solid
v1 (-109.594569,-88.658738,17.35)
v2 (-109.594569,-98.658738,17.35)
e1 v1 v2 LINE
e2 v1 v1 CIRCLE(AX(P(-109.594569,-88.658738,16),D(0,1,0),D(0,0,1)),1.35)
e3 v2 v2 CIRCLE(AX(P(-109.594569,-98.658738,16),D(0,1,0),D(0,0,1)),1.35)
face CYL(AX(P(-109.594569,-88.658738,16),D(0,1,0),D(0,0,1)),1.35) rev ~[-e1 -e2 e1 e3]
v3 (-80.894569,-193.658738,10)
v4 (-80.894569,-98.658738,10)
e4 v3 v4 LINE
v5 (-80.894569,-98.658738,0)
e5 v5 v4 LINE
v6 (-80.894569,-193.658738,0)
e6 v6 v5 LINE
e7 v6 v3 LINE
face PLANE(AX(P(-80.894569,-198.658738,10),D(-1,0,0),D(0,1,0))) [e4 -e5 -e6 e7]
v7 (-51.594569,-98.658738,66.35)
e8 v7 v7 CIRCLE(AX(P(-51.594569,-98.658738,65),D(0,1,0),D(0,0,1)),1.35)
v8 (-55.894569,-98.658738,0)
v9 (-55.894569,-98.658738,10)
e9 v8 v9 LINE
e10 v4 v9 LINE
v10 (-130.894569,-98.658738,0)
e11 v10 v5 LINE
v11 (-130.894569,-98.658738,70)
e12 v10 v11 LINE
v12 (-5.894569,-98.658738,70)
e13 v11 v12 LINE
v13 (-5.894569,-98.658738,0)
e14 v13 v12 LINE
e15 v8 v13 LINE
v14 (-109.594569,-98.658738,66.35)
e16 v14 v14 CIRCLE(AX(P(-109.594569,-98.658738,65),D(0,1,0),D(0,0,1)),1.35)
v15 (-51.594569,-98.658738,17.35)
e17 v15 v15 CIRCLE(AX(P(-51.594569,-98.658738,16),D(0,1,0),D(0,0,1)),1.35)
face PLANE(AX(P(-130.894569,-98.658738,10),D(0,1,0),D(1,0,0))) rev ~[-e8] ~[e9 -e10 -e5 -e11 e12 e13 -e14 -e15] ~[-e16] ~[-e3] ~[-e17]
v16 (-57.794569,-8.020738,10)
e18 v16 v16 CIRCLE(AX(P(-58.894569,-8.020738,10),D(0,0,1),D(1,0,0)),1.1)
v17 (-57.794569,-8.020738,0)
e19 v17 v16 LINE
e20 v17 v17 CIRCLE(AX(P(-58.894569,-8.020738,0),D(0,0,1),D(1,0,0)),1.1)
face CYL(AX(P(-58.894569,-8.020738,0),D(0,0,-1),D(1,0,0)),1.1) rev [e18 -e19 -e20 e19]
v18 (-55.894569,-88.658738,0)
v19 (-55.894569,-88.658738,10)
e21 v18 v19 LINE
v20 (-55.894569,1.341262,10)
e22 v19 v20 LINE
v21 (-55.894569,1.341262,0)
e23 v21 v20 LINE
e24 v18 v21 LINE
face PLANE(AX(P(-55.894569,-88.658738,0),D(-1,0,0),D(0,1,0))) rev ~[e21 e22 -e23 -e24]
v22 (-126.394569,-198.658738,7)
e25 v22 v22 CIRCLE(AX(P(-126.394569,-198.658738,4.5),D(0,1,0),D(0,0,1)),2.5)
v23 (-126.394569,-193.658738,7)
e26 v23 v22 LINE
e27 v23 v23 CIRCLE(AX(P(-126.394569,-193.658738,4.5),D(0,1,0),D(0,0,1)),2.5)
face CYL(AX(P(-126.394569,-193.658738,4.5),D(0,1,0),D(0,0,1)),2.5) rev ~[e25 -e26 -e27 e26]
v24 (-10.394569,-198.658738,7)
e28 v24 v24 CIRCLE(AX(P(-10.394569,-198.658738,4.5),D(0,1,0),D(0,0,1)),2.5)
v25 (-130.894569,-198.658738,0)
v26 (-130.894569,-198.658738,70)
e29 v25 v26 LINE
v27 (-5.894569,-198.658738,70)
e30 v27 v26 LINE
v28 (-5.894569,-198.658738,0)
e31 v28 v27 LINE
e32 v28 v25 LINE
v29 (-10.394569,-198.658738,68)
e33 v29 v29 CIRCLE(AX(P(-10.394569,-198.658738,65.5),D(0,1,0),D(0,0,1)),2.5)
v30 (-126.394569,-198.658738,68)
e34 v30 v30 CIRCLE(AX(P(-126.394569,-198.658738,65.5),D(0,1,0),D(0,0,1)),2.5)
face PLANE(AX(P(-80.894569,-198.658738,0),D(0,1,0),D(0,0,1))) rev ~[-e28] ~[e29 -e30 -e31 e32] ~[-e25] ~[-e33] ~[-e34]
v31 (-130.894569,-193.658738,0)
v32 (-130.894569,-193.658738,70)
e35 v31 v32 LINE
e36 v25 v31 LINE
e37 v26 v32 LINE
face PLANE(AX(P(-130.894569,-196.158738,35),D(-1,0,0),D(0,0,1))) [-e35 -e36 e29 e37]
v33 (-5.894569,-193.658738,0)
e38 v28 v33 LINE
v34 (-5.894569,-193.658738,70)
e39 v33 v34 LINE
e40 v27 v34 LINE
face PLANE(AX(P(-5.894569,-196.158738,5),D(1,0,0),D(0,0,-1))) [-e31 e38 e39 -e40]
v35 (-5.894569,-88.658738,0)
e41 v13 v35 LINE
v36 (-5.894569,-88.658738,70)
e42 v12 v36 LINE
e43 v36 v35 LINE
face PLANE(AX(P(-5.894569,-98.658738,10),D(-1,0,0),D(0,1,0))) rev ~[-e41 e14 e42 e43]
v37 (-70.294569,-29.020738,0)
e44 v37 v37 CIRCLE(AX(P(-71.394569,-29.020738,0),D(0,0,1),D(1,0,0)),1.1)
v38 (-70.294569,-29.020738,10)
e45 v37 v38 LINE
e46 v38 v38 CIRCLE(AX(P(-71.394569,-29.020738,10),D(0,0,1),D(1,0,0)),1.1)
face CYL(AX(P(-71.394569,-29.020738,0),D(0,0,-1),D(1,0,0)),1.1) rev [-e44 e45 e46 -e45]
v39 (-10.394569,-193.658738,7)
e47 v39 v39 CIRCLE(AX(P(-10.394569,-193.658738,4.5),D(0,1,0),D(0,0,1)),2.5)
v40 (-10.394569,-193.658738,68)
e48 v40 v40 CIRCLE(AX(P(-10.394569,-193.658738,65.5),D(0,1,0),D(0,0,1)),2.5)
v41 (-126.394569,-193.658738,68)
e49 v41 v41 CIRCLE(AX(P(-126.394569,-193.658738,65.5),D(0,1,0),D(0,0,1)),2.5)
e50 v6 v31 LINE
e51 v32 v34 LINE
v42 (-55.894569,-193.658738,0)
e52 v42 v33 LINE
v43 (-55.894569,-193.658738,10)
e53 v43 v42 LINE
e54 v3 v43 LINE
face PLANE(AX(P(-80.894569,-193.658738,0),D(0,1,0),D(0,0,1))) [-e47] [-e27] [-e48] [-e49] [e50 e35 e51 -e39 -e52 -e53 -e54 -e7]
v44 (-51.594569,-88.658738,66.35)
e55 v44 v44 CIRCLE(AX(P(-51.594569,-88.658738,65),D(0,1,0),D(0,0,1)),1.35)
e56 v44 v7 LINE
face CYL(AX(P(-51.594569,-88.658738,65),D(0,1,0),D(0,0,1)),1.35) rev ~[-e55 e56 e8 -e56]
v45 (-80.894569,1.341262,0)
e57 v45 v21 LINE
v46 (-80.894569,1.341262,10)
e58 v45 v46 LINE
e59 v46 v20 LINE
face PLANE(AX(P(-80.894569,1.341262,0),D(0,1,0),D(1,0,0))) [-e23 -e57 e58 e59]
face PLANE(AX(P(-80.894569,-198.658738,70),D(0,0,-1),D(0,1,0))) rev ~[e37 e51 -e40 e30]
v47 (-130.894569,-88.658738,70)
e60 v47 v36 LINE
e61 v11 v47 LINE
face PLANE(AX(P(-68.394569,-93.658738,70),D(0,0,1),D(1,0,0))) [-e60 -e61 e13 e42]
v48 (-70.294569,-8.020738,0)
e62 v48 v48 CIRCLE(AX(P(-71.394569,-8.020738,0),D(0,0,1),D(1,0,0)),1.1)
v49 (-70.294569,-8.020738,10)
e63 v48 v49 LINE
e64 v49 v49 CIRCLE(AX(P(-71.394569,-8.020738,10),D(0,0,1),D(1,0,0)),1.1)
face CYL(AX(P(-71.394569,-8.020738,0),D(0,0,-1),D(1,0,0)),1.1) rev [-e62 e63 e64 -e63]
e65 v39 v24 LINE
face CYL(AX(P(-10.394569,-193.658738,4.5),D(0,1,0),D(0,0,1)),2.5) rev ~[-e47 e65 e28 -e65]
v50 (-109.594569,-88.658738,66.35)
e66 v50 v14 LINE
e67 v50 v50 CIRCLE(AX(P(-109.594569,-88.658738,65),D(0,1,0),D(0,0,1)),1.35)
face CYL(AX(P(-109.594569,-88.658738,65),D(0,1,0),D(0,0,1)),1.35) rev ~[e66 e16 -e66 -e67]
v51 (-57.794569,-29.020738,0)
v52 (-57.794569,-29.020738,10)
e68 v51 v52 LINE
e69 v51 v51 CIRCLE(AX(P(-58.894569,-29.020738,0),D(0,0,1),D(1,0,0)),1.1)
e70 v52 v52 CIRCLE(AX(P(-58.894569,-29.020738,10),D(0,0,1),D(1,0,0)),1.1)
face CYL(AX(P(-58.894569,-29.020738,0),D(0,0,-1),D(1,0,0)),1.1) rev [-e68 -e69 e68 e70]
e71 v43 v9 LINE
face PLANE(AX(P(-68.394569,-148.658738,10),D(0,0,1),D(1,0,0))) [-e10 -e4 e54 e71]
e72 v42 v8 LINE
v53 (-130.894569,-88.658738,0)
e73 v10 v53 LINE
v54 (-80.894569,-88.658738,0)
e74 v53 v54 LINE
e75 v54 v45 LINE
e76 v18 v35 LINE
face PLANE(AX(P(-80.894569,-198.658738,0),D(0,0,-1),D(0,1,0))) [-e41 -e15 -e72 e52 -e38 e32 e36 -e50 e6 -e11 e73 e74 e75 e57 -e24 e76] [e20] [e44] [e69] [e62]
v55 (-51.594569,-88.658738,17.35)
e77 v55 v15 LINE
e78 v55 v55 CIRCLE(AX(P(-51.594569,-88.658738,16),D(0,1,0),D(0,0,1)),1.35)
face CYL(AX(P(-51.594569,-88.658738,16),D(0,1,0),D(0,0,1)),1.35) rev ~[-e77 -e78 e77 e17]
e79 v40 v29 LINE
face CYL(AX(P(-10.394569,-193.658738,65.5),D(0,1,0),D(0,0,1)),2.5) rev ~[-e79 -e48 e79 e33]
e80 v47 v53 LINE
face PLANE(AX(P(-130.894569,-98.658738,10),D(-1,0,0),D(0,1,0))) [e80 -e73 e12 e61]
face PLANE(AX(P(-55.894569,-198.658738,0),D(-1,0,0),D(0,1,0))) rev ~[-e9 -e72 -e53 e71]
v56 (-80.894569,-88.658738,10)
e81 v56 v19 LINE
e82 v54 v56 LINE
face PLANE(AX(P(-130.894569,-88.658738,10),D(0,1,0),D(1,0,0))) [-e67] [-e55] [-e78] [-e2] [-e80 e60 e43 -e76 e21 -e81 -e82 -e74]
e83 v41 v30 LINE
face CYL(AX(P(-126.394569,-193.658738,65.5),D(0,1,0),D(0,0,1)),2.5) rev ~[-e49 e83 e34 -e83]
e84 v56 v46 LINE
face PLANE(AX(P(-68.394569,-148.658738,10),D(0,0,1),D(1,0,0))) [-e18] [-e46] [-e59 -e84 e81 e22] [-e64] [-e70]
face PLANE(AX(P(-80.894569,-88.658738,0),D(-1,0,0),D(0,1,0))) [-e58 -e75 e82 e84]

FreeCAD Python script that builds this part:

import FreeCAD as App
import Part
import Sketcher
Q = App.Units.Quantity

doc = App.newDocument("Part")
params = doc.addObject("Spreadsheet::Sheet", "Params")
for row, (alias, value) in enumerate([
    ("sketch1_diameter", "2.2 mm"),
    ("sketch1_width", "50 mm"),
    ("sketch1_width2", "25 mm"),
    ("sketch1_height", "90 mm"),
    ("sketch1_height2", "10 mm"),
    ("pad1_length", "10 mm"),
    ("sketch2_width", "125 mm"),
    ("sketch2_height", "10 mm"),
    ("pad2_length", "60 mm"),
    ("sketch3_width", "75 mm"),
    ("sketch3_height", "5 mm"),
    ("pad3_length", "60 mm"),
    ("sketch4_width", "5 mm"),
    ("sketch4_height", "10 mm"),
    ("pad4_length", "50 mm"),
    ("sketch5_width", "5 mm"),
    ("sketch5_height", "70 mm"),
    ("pad5_length", "50 mm"),
    ("sketch6_diameter", "5 mm"),
    ("sketch7_diameter", "2.7 mm"),
    ("sketch8_diameter", "2.7 mm"),
    ("sketch9_diameter", "2.7 mm"),
    ("sketch10_diameter", "2.7 mm"),
], start=1):
    params.set(f"A{row}", alias)
    params.set(f"B{row}", "=" + value)
    params.setAlias(f"B{row}", alias)

body = doc.addObject("PartDesign::Body", "Body")

# Sketch on XY plane
sketch1 = body.newObject("Sketcher::SketchObject", "Sketch")
sketch1.AttachmentSupport = (doc.getObject("XY_Plane"), [""])
sketch1.MapMode = "FlatFace"
sketch1.addGeometry([
    Part.LineSegment(App.Vector(-80.9, 1.3, 0), App.Vector(-80.9, -88.7, 0)),  # 0
    Part.LineSegment(App.Vector(-80.9, -88.7, 0), App.Vector(-130.9, -88.7, 0)),  # 1
    Part.LineSegment(App.Vector(-130.9, -88.7, 0), App.Vector(-130.9, -98.7, 0)),  # 2
    Part.LineSegment(App.Vector(-130.9, -98.7, 0), App.Vector(-80.9, -98.7, 0)),  # 3
    Part.LineSegment(App.Vector(-80.9, -98.7, 0), App.Vector(-80.9, -198.7, 0)),  # 4
    Part.LineSegment(App.Vector(-80.9, -198.7, 0), App.Vector(-55.9, -198.7, 0)),  # 5
    Part.LineSegment(App.Vector(-55.9, -198.7, 0), App.Vector(-55.9, -98.7, 0)),  # 6
    Part.LineSegment(App.Vector(-55.9, -98.7, 0), App.Vector(-5.9, -98.7, 0)),  # 7
    Part.LineSegment(App.Vector(-5.9, -98.7, 0), App.Vector(-5.9, -88.7, 0)),  # 8
    Part.LineSegment(App.Vector(-5.9, -88.7, 0), App.Vector(-55.9, -88.7, 0)),  # 9
    Part.LineSegment(App.Vector(-55.9, -88.7, 0), App.Vector(-55.9, 1.3, 0)),  # 10
    Part.LineSegment(App.Vector(-55.9, 1.3, 0), App.Vector(-80.9, 1.3, 0)),  # 11
    Part.Circle(App.Vector(-71.4, -29, 0), App.Vector(0, 0, 1), 1.1),  # 12
    Part.Circle(App.Vector(-58.9, -29, 0), App.Vector(0, 0, 1), 1.1),  # 13
    Part.Circle(App.Vector(-71.4, -8, 0), App.Vector(0, 0, 1), 1.1),  # 14
    Part.Circle(App.Vector(-58.9, -8, 0), App.Vector(0, 0, 1), 1.1),  # 15
], False)
sketch1.addConstraint([
    Sketcher.Constraint("Coincident", 0, 2, 1, 1),
    Sketcher.Constraint("Coincident", 1, 2, 2, 1),
    Sketcher.Constraint("Coincident", 2, 2, 3, 1),
    Sketcher.Constraint("Coincident", 3, 2, 4, 1),
    Sketcher.Constraint("Coincident", 4, 2, 5, 1),
    Sketcher.Constraint("Coincident", 5, 2, 6, 1),
    Sketcher.Constraint("Coincident", 6, 2, 7, 1),
    Sketcher.Constraint("Coincident", 7, 2, 8, 1),
    Sketcher.Constraint("Coincident", 8, 2, 9, 1),
    Sketcher.Constraint("Coincident", 9, 2, 10, 1),
    Sketcher.Constraint("Coincident", 10, 2, 11, 1),
    Sketcher.Constraint("Coincident", 11, 2, 0, 1),
    Sketcher.Constraint("Vertical", 0),
    Sketcher.Constraint("Horizontal", 1),
    Sketcher.Constraint("Vertical", 2),
    Sketcher.Constraint("Horizontal", 3),
    Sketcher.Constraint("Vertical", 4),
    Sketcher.Constraint("Horizontal", 5),
    Sketcher.Constraint("Vertical", 6),
    Sketcher.Constraint("Horizontal", 7),
    Sketcher.Constraint("Vertical", 8),
    Sketcher.Constraint("Horizontal", 9),
    Sketcher.Constraint("Vertical", 10),
    Sketcher.Constraint("Horizontal", 11),
    Sketcher.Constraint("Equal", 12, 13),
    Sketcher.Constraint("Equal", 13, 14),
    Sketcher.Constraint("Equal", 14, 15),
    Sketcher.Constraint("Horizontal", 12, 3, 13, 3),
    Sketcher.Constraint("Horizontal", 14, 3, 15, 3),
    Sketcher.Constraint("Horizontal", 3, 2, 6, 2),
    Sketcher.Constraint("Horizontal", 1, 2, 8, 2),
    Sketcher.Constraint("Vertical", 12, 3, 14, 3),
    Sketcher.Constraint("Vertical", 13, 3, 15, 3),
    Sketcher.Constraint("Vertical", 0, 2, 3, 2),
    Sketcher.Constraint("Vertical", 6, 2, 9, 2),
    Sketcher.Constraint("Equal", 3, 7),
    Sketcher.Constraint("Diameter", 12, Q("2.2 mm")),
    Sketcher.Constraint("DistanceX", 1, 2, 1, 1, Q("50 mm")),
    Sketcher.Constraint("DistanceX", 5, 1, 5, 2, Q("25 mm")),
    Sketcher.Constraint("DistanceY", 0, 2, 0, 1, Q("90 mm")),
    Sketcher.Constraint("DistanceY", 2, 2, 2, 1, Q("10 mm")),
    Sketcher.Constraint("DistanceY", 4, 2, 4, 1, Q("100 mm")),
    Sketcher.Constraint("DistanceY", 12, 3, 14, 3, Q("21 mm")),
    Sketcher.Constraint("DistanceX", 0, 2, 13, 3, Q("22 mm")),
    Sketcher.Constraint("DistanceX", 12, 3, 13, 3, Q("12.5 mm")),
    Sketcher.Constraint("DistanceY", 0, 2, 12, 3, Q("59.638 mm")),
    Sketcher.Constraint("DistanceX", 12, 3, -1, 1, Q("71.394569 mm")),
    Sketcher.Constraint("DistanceY", 12, 3, -1, 1, Q("29.020738 mm")),
])
sketch1.setExpression("Constraints[36]", "Params.sketch1_diameter")
sketch1.setExpression("Constraints[37]", "Params.sketch1_width")
sketch1.setExpression("Constraints[38]", "Params.sketch1_width2")
sketch1.setExpression("Constraints[39]", "Params.sketch1_height")
sketch1.setExpression("Constraints[40]", "Params.sketch1_height2")
pad1 = body.newObject("PartDesign::Pad", "Pad")
pad1.Profile = sketch1
pad1.setExpression("Length", "Params.pad1_length")

# Sketch on XY plane
sketch2 = body.newObject("Sketcher::SketchObject", "Sketch001")
sketch2.AttachmentSupport = (doc.getObject("XY_Plane"), [""])
sketch2.MapMode = "FlatFace"
sketch2.AttachmentOffset = App.Placement(App.Vector(0, 0, 10), App.Rotation())
sketch2.addGeometry([
    Part.LineSegment(App.Vector(-131, -89, 0), App.Vector(-131, -99, 0)),
    Part.LineSegment(App.Vector(-131, -99, 0), App.Vector(-6, -99, 0)),
    Part.LineSegment(App.Vector(-6, -99, 0), App.Vector(-6, -89, 0)),
    Part.LineSegment(App.Vector(-6, -89, 0), App.Vector(-131, -89, 0)),
], False)
sketch2.addConstraint([
    Sketcher.Constraint("Coincident", 0, 2, 1, 1),
    Sketcher.Constraint("Coincident", 1, 2, 2, 1),
    Sketcher.Constraint("Coincident", 2, 2, 3, 1),
    Sketcher.Constraint("Coincident", 3, 2, 0, 1),
    Sketcher.Constraint("Vertical", 0),
    Sketcher.Constraint("Horizontal", 1),
    Sketcher.Constraint("Vertical", 2),
    Sketcher.Constraint("Horizontal", 3),
    Sketcher.Constraint("DistanceX", 1, 1, 1, 2, Q("125 mm")),
    Sketcher.Constraint("DistanceY", 0, 2, 0, 1, Q("10 mm")),
    Sketcher.Constraint("DistanceX", 0, 2, -1, 1, Q("130.894569 mm")),
    Sketcher.Constraint("DistanceY", 0, 2, -1, 1, Q("98.658738 mm")),
])
sketch2.setExpression("Constraints[8]", "Params.sketch2_width")
sketch2.setExpression("Constraints[9]", "Params.sketch2_height")
pad2 = body.newObject("PartDesign::Pad", "Pad001")
pad2.Profile = sketch2
pad2.setExpression("Length", "Params.pad2_length")

# Sketch on XY plane
sketch3 = body.newObject("Sketcher::SketchObject", "Sketch002")
sketch3.AttachmentSupport = (doc.getObject("XY_Plane"), [""])
sketch3.MapMode = "FlatFace"
sketch3.AttachmentOffset = App.Placement(App.Vector(0, 0, 10), App.Rotation())
sketch3.addGeometry([
    Part.LineSegment(App.Vector(-81, -194, 0), App.Vector(-81, -199, 0)),
    Part.LineSegment(App.Vector(-81, -199, 0), App.Vector(-6, -199, 0)),
    Part.LineSegment(App.Vector(-6, -199, 0), App.Vector(-6, -194, 0)),
    Part.LineSegment(App.Vector(-6, -194, 0), App.Vector(-81, -194, 0)),
], False)
sketch3.addConstraint([
    Sketcher.Constraint("Coincident", 0, 2, 1, 1),
    Sketcher.Constraint("Coincident", 1, 2, 2, 1),
    Sketcher.Constraint("Coincident", 2, 2, 3, 1),
    Sketcher.Constraint("Coincident", 3, 2, 0, 1),
    Sketcher.Constraint("Vertical", 0),
    Sketcher.Constraint("Horizontal", 1),
    Sketcher.Constraint("Vertical", 2),
    Sketcher.Constraint("Horizontal", 3),
    Sketcher.Constraint("DistanceX", 1, 1, 1, 2, Q("75 mm")),
    Sketcher.Constraint("DistanceY", 0, 2, 0, 1, Q("5 mm")),
    Sketcher.Constraint("DistanceX", 0, 2, -1, 1, Q("80.894569 mm")),
    Sketcher.Constraint("DistanceY", 0, 2, -1, 1, Q("198.658738 mm")),
])
sketch3.setExpression("Constraints[8]", "Params.sketch3_width")
sketch3.setExpression("Constraints[9]", "Params.sketch3_height")
pad3 = body.newObject("PartDesign::Pad", "Pad002")
pad3.Profile = sketch3
pad3.setExpression("Length", "Params.pad3_length")

# Sketch on YZ plane
sketch4 = body.newObject("Sketcher::SketchObject", "Sketch003")
sketch4.AttachmentSupport = (doc.getObject("YZ_Plane"), [""])
sketch4.MapMode = "FlatFace"
sketch4.AttachmentOffset = App.Placement(App.Vector(0, 0, -55.894569), App.Rotation())
sketch4.addGeometry([
    Part.LineSegment(App.Vector(-194, 10, 0), App.Vector(-199, 10, 0)),
    Part.LineSegment(App.Vector(-199, 10, 0), App.Vector(-199, 0, 0)),
    Part.LineSegment(App.Vector(-199, 0, 0), App.Vector(-194, 0, 0)),
    Part.LineSegment(App.Vector(-194, 0, 0), App.Vector(-194, 10, 0)),
], False)
sketch4.addConstraint([
    Sketcher.Constraint("Coincident", 0, 2, 1, 1),
    Sketcher.Constraint("Coincident", 1, 2, 2, 1),
    Sketcher.Constraint("Coincident", 2, 2, 3, 1),
    Sketcher.Constraint("Coincident", 3, 2, 0, 1),
    Sketcher.Constraint("Horizontal", 0),
    Sketcher.Constraint("Vertical", 1),
    Sketcher.Constraint("Horizontal", 2),
    Sketcher.Constraint("Vertical", 3),
    Sketcher.Constraint("PointOnObject", 1, 2, -1),
    Sketcher.Constraint("DistanceX", 0, 2, 0, 1, Q("5 mm")),
    Sketcher.Constraint("DistanceY", 1, 2, 1, 1, Q("10 mm")),
    Sketcher.Constraint("DistanceX", 0, 2, -1, 1, Q("198.658738 mm")),
])
sketch4.setExpression("Constraints[9]", "Params.sketch4_width")
sketch4.setExpression("Constraints[10]", "Params.sketch4_height")
pad4 = body.newObject("PartDesign::Pad", "Pad003")
pad4.Profile = sketch4
pad4.setExpression("Length", "Params.pad4_length")

# Sketch on YZ plane
sketch5 = body.newObject("Sketcher::SketchObject", "Sketch004")
sketch5.AttachmentSupport = (doc.getObject("YZ_Plane"), [""])
sketch5.MapMode = "FlatFace"
sketch5.AttachmentOffset = App.Placement(App.Vector(0, 0, -80.894569), App.Rotation())
sketch5.addGeometry([
    Part.LineSegment(App.Vector(-194, 0, 0), App.Vector(-199, 0, 0)),
    Part.LineSegment(App.Vector(-199, 0, 0), App.Vector(-199, 70, 0)),
    Part.LineSegment(App.Vector(-199, 70, 0), App.Vector(-194, 70, 0)),
    Part.LineSegment(App.Vector(-194, 70, 0), App.Vector(-194, 0, 0)),
], False)
sketch5.addConstraint([
    Sketcher.Constraint("Coincident", 0, 2, 1, 1),
    Sketcher.Constraint("Coincident", 1, 2, 2, 1),
    Sketcher.Constraint("Coincident", 2, 2, 3, 1),
    Sketcher.Constraint("Coincident", 3, 2, 0, 1),
    Sketcher.Constraint("Horizontal", 0),
    Sketcher.Constraint("Vertical", 1),
    Sketcher.Constraint("Horizontal", 2),
    Sketcher.Constraint("Vertical", 3),
    Sketcher.Constraint("PointOnObject", 0, 2, -1),
    Sketcher.Constraint("DistanceX", 0, 2, 0, 1, Q("5 mm")),
    Sketcher.Constraint("DistanceY", 1, 1, 1, 2, Q("70 mm")),
    Sketcher.Constraint("DistanceX", 0, 2, -1, 1, Q("198.658738 mm")),
])
sketch5.setExpression("Constraints[9]", "Params.sketch5_width")
sketch5.setExpression("Constraints[10]", "Params.sketch5_height")
pad5 = body.newObject("PartDesign::Pad", "Pad004")
pad5.Profile = sketch5
pad5.setExpression("Length", "Params.pad5_length")
pad5.Reversed = True

# Sketch on XZ plane
sketch6 = body.newObject("Sketcher::SketchObject", "Sketch005")
sketch6.AttachmentSupport = (doc.getObject("XZ_Plane"), [""])
sketch6.MapMode = "FlatFace"
sketch6.AttachmentOffset = App.Placement(App.Vector(0, 0, 193.658738), App.Rotation())
sketch6.addGeometry([
    Part.Circle(App.Vector(-126.4, 4.5, 0), App.Vector(0, 0, 1), 2.5),
    Part.Circle(App.Vector(-126.4, 65.5, 0), App.Vector(0, 0, 1), 2.5),
    Part.Circle(App.Vector(-10.4, 65.5, 0), App.Vector(0, 0, 1), 2.5),
    Part.Circle(App.Vector(-10.4, 4.5, 0), App.Vector(0, 0, 1), 2.5),
], False)
sketch6.addConstraint([
    Sketcher.Constraint("Equal", 0, 1),
    Sketcher.Constraint("Equal", 1, 2),
    Sketcher.Constraint("Equal", 2, 3),
    Sketcher.Constraint("Horizontal", 1, 3, 2, 3),
    Sketcher.Constraint("Horizontal", 0, 3, 3, 3),
    Sketcher.Constraint("Vertical", 0, 3, 1, 3),
    Sketcher.Constraint("Vertical", 2, 3, 3, 3),
    Sketcher.Constraint("Diameter", 0, Q("5 mm")),
    Sketcher.Constraint("DistanceY", 0, 3, 1, 3, Q("61 mm")),
    Sketcher.Constraint("DistanceX", 1, 3, 2, 3, Q("116 mm")),
    Sketcher.Constraint("DistanceY", -1, 1, 0, 3, Q("4.5 mm")),
    Sketcher.Constraint("DistanceX", 0, 3, -1, 1, Q("126.394569 mm")),
])
sketch6.setExpression("Constraints[7]", "Params.sketch6_diameter")
pocket1 = body.newObject("PartDesign::Pocket", "Pocket")
pocket1.Profile = sketch6
pocket1.Type = "ThroughAll"
pocket1.Reversed = True

# Sketch on XZ plane
sketch7 = body.newObject("Sketcher::SketchObject", "Sketch006")
sketch7.AttachmentSupport = (doc.getObject("XZ_Plane"), [""])
sketch7.MapMode = "FlatFace"
sketch7.AttachmentOffset = App.Placement(App.Vector(0, 0, 88.658738), App.Rotation())
sketch7.addGeometry(Part.Circle(App.Vector(-109.6, 16, 0), App.Vector(0, 0, 1), 1.4), False)
sketch7.addConstraint([
    Sketcher.Constraint("Diameter", 0, Q("2.7 mm")),
    Sketcher.Constraint("DistanceY", -1, 1, 0, 3, Q("16 mm")),
    Sketcher.Constraint("DistanceX", 0, 3, -1, 1, Q("109.594569 mm")),
])
sketch7.setExpression("Constraints[0]", "Params.sketch7_diameter")
pocket2 = body.newObject("PartDesign::Pocket", "Pocket001")
pocket2.Profile = sketch7
pocket2.Type = "UpToFirst"
pocket2.Reversed = True

# Sketch on XZ plane
sketch8 = body.newObject("Sketcher::SketchObject", "Sketch007")
sketch8.AttachmentSupport = (doc.getObject("XZ_Plane"), [""])
sketch8.MapMode = "FlatFace"
sketch8.AttachmentOffset = App.Placement(App.Vector(0, 0, 88.658738), App.Rotation())
sketch8.addGeometry(Part.Circle(App.Vector(-109.6, 65, 0), App.Vector(0, 0, 1), 1.4), False)
sketch8.addConstraint([
    Sketcher.Constraint("Diameter", 0, Q("2.7 mm")),
    Sketcher.Constraint("DistanceY", -1, 1, 0, 3, Q("65 mm")),
    Sketcher.Constraint("DistanceX", 0, 3, -1, 1, Q("109.594569 mm")),
])
sketch8.setExpression("Constraints[0]", "Params.sketch8_diameter")
pocket3 = body.newObject("PartDesign::Pocket", "Pocket002")
pocket3.Profile = sketch8
pocket3.Type = "UpToFirst"
pocket3.Reversed = True

# Sketch on XZ plane
sketch9 = body.newObject("Sketcher::SketchObject", "Sketch008")
sketch9.AttachmentSupport = (doc.getObject("XZ_Plane"), [""])
sketch9.MapMode = "FlatFace"
sketch9.AttachmentOffset = App.Placement(App.Vector(0, 0, 88.658738), App.Rotation())
sketch9.addGeometry(Part.Circle(App.Vector(-51.6, 65, 0), App.Vector(0, 0, 1), 1.4), False)
sketch9.addConstraint([
    Sketcher.Constraint("Diameter", 0, Q("2.7 mm")),
    Sketcher.Constraint("DistanceY", -1, 1, 0, 3, Q("65 mm")),
    Sketcher.Constraint("DistanceX", 0, 3, -1, 1, Q("51.594569 mm")),
])
sketch9.setExpression("Constraints[0]", "Params.sketch9_diameter")
pocket4 = body.newObject("PartDesign::Pocket", "Pocket003")
pocket4.Profile = sketch9
pocket4.Type = "UpToFirst"
pocket4.Reversed = True

# Sketch on XZ plane
sketch10 = body.newObject("Sketcher::SketchObject", "Sketch009")
sketch10.AttachmentSupport = (doc.getObject("XZ_Plane"), [""])
sketch10.MapMode = "FlatFace"
sketch10.AttachmentOffset = App.Placement(App.Vector(0, 0, 88.658738), App.Rotation())
sketch10.addGeometry(Part.Circle(App.Vector(-51.6, 16, 0), App.Vector(0, 0, 1), 1.4), False)
sketch10.addConstraint([
    Sketcher.Constraint("Diameter", 0, Q("2.7 mm")),
    Sketcher.Constraint("DistanceY", -1, 1, 0, 3, Q("16 mm")),
    Sketcher.Constraint("DistanceX", 0, 3, -1, 1, Q("51.594569 mm")),
])
sketch10.setExpression("Constraints[0]", "Params.sketch10_diameter")
pocket5 = body.newObject("PartDesign::Pocket", "Pocket004")
pocket5.Profile = sketch10
pocket5.Type = "UpToFirst"
pocket5.Reversed = True

doc.recompute()
